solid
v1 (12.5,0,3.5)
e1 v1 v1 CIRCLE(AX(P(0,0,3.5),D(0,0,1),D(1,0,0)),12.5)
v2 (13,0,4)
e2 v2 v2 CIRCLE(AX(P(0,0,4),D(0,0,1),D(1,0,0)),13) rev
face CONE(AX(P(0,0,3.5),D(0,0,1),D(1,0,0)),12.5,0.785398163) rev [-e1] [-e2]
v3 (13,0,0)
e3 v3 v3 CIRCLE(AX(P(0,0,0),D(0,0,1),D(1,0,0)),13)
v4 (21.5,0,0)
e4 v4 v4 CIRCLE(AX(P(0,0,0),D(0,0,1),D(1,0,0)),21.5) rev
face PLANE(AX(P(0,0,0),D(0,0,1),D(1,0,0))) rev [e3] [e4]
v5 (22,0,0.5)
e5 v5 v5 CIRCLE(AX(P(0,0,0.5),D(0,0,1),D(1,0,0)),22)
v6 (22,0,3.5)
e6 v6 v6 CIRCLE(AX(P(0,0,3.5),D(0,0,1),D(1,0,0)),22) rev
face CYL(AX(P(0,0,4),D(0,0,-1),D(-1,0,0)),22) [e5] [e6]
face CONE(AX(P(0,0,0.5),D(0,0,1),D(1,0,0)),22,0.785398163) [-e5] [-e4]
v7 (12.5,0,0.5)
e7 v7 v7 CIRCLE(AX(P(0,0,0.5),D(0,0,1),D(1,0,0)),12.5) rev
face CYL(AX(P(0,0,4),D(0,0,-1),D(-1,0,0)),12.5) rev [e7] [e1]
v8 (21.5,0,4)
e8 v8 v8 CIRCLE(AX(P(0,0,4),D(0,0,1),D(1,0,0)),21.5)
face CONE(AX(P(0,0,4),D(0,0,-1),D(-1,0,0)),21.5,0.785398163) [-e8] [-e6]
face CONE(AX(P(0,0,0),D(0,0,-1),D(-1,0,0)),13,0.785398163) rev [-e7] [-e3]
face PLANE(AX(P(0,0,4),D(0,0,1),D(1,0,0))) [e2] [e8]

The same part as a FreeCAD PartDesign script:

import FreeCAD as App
import Part
import Sketcher
from FreeCAD import Vector


def edges_at(feature, points):
    """Names of the edges that pass closest to the given points."""
    edges = feature.Shape.Edges
    near = lambda p: min(range(len(edges)), key=lambda i: edges[i].distToShape(Part.Vertex(*p))[0])
    return sorted({f"Edge{near(p) + 1}" for p in points})

doc = App.newDocument("Part")
body = doc.addObject("PartDesign::Body", "Body")

# Sketch on XY plane
sketch1 = doc.addObject("Sketcher::SketchObject", "Sketch")
body.addObject(sketch1)
sketch1.AttachmentSupport = (doc.XY_Plane, [""])
sketch1.MapMode = "FlatFace"
sketch1.addGeometry(Part.Circle(Vector(0, 0, 0), Vector(0, 0, 1), 22), False)
sketch1.addGeometry(Part.Circle(Vector(0, 0, 0), Vector(0, 0, 1), 12.5), False)
sketch1.addConstraint(Sketcher.Constraint("Coincident", 0, 3, -1, 1))
sketch1.addConstraint(Sketcher.Constraint("Coincident", 1, 3, -1, 1))
sketch1.addConstraint(Sketcher.Constraint("Diameter", 0, 44.0))
sketch1.addConstraint(Sketcher.Constraint("Diameter", 1, 25.0))
pad1 = doc.addObject("PartDesign::Pad", "Pad")
body.addObject(pad1)
pad1.Profile = sketch1
pad1.Length = 4
doc.recompute()

chamfer = doc.addObject("PartDesign::Chamfer", "Chamfer")
body.addObject(chamfer)
chamfer.Base = (pad1, edges_at(pad1, [
    (-22, 0, 0),
    (-22, 0, 4),
    (-12.5, 0, 0),
    (-12.5, 0, 4),
]))
chamfer.Size = 0.5

doc.recompute()
